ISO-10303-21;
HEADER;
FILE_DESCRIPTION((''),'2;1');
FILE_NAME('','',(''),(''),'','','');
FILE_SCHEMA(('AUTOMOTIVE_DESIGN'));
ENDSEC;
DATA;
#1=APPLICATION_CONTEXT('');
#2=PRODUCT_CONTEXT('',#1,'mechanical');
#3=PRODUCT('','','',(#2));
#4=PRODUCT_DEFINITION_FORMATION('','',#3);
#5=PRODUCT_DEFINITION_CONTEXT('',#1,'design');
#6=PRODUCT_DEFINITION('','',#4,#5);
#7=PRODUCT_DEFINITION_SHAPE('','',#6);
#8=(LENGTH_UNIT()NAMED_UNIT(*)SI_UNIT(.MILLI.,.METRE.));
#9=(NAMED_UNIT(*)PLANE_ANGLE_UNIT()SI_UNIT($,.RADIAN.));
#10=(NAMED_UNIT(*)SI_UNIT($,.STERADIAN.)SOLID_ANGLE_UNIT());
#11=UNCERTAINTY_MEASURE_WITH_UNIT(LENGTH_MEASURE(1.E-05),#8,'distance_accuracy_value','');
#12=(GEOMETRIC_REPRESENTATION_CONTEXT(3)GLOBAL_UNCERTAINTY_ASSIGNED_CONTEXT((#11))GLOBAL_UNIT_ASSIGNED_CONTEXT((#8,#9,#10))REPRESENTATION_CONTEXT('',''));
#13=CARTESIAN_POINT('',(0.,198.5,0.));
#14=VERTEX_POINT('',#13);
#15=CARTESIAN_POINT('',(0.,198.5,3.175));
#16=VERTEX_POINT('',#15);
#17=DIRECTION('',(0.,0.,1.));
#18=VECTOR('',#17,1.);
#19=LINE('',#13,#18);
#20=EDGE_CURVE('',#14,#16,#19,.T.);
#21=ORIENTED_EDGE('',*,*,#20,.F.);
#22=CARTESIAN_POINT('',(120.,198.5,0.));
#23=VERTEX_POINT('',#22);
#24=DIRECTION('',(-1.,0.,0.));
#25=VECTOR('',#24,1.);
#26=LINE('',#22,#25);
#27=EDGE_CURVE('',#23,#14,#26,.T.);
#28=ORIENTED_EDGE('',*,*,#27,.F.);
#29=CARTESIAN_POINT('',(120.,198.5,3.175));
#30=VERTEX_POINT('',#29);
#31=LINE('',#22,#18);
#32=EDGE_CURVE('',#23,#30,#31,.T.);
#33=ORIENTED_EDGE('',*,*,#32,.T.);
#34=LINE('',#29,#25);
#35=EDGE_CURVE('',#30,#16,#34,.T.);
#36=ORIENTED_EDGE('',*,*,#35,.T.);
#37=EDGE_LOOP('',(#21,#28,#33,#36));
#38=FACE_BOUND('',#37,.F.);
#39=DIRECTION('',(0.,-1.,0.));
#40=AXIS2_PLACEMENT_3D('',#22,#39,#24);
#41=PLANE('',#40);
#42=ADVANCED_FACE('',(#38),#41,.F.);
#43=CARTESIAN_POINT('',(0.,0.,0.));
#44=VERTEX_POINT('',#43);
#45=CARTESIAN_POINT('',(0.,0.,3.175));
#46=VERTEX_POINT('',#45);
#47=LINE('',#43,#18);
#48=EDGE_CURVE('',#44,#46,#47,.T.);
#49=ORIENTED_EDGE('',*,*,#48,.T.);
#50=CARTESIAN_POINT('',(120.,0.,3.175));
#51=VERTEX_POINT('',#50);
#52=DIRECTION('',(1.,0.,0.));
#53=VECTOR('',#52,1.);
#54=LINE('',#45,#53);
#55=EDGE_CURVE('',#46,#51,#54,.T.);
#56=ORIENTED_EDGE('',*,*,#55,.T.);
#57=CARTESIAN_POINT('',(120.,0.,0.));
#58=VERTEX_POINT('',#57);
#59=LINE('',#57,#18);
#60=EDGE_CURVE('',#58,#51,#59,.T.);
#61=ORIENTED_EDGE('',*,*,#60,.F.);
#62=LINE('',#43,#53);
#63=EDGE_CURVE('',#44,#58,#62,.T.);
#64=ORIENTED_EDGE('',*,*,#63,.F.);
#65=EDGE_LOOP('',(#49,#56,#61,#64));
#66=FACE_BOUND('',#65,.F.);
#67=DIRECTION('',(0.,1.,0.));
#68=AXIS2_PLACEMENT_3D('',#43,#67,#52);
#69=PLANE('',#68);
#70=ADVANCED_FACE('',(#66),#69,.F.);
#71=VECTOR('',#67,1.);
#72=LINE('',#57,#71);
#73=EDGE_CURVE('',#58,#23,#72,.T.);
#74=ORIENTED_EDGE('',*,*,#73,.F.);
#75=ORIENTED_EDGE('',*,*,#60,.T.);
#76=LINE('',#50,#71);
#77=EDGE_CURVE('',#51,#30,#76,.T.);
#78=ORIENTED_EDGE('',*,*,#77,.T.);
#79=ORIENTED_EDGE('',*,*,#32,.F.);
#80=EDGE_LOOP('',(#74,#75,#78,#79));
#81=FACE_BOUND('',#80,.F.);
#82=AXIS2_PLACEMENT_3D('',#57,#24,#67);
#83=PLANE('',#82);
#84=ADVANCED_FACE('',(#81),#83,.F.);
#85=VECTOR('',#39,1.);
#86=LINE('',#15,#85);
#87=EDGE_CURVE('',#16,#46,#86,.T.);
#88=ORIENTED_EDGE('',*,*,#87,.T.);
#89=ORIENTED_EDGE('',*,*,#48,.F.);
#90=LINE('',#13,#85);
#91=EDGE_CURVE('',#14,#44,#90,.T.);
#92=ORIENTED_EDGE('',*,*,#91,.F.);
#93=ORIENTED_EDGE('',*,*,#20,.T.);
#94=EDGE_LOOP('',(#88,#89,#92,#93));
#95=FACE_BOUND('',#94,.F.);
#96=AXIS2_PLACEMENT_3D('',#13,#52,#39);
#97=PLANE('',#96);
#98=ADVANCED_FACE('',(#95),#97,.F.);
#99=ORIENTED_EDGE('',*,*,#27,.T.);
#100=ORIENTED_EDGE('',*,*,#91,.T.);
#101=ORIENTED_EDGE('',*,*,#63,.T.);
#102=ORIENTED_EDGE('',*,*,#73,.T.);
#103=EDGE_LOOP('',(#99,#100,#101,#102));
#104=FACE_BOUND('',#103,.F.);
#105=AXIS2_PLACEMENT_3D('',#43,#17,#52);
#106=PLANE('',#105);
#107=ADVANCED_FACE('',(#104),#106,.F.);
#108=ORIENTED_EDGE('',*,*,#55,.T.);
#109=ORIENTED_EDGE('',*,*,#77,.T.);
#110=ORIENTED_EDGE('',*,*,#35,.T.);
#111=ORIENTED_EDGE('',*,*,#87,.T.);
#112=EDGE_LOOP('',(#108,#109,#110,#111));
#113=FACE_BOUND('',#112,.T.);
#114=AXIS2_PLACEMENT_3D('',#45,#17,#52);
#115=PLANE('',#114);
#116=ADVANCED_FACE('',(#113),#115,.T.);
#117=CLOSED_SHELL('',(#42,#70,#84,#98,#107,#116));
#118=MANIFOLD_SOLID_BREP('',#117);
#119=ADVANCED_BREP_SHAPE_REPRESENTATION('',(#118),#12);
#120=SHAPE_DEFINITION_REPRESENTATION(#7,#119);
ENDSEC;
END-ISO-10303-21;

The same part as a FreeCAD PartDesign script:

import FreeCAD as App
import Part
import Sketcher
from FreeCAD import Vector


def add_polygon(sketch, points):
    """Adds a closed chain of lines whose ends are joined by coincident constraints."""
    first, n = sketch.GeometryCount, len(points)
    for a, b in zip(points, points[1:] + points[:1]):
        sketch.addGeometry(Part.LineSegment(App.Vector(*a, 0), App.Vector(*b, 0)), False)
    for i in range(n):
        sketch.addConstraint(Sketcher.Constraint("Coincident", first + i, 2, first + (i + 1) % n, 1))

doc = App.newDocument("Part")
body = doc.addObject("PartDesign::Body", "Body")

# Sketch on XY plane
sketch1 = body.newObject("Sketcher::SketchObject", "Sketch")
sketch1.AttachmentSupport = (doc.getObject("XY_Plane"), [""])
sketch1.MapMode = "FlatFace"
add_polygon(sketch1, [(0, 198), (0, 0), (120, 0), (120, 198)])  # lines 0-3
sketch1.addConstraint([
    Sketcher.Constraint("Vertical", 0),
    Sketcher.Constraint("Horizontal", 1),
    Sketcher.Constraint("Vertical", 2),
    Sketcher.Constraint("Horizontal", 3),
    Sketcher.Constraint("Coincident", 0, 2, -1, 1),
    Sketcher.Constraint("DistanceX", 1, 1, 1, 2, 120.0),
    Sketcher.Constraint("DistanceY", 0, 2, 0, 1, 198.5),
])
pad1 = body.newObject("PartDesign::Pad", "Pad")
pad1.Profile = sketch1
pad1.Length = 3.175

doc.recompute()
